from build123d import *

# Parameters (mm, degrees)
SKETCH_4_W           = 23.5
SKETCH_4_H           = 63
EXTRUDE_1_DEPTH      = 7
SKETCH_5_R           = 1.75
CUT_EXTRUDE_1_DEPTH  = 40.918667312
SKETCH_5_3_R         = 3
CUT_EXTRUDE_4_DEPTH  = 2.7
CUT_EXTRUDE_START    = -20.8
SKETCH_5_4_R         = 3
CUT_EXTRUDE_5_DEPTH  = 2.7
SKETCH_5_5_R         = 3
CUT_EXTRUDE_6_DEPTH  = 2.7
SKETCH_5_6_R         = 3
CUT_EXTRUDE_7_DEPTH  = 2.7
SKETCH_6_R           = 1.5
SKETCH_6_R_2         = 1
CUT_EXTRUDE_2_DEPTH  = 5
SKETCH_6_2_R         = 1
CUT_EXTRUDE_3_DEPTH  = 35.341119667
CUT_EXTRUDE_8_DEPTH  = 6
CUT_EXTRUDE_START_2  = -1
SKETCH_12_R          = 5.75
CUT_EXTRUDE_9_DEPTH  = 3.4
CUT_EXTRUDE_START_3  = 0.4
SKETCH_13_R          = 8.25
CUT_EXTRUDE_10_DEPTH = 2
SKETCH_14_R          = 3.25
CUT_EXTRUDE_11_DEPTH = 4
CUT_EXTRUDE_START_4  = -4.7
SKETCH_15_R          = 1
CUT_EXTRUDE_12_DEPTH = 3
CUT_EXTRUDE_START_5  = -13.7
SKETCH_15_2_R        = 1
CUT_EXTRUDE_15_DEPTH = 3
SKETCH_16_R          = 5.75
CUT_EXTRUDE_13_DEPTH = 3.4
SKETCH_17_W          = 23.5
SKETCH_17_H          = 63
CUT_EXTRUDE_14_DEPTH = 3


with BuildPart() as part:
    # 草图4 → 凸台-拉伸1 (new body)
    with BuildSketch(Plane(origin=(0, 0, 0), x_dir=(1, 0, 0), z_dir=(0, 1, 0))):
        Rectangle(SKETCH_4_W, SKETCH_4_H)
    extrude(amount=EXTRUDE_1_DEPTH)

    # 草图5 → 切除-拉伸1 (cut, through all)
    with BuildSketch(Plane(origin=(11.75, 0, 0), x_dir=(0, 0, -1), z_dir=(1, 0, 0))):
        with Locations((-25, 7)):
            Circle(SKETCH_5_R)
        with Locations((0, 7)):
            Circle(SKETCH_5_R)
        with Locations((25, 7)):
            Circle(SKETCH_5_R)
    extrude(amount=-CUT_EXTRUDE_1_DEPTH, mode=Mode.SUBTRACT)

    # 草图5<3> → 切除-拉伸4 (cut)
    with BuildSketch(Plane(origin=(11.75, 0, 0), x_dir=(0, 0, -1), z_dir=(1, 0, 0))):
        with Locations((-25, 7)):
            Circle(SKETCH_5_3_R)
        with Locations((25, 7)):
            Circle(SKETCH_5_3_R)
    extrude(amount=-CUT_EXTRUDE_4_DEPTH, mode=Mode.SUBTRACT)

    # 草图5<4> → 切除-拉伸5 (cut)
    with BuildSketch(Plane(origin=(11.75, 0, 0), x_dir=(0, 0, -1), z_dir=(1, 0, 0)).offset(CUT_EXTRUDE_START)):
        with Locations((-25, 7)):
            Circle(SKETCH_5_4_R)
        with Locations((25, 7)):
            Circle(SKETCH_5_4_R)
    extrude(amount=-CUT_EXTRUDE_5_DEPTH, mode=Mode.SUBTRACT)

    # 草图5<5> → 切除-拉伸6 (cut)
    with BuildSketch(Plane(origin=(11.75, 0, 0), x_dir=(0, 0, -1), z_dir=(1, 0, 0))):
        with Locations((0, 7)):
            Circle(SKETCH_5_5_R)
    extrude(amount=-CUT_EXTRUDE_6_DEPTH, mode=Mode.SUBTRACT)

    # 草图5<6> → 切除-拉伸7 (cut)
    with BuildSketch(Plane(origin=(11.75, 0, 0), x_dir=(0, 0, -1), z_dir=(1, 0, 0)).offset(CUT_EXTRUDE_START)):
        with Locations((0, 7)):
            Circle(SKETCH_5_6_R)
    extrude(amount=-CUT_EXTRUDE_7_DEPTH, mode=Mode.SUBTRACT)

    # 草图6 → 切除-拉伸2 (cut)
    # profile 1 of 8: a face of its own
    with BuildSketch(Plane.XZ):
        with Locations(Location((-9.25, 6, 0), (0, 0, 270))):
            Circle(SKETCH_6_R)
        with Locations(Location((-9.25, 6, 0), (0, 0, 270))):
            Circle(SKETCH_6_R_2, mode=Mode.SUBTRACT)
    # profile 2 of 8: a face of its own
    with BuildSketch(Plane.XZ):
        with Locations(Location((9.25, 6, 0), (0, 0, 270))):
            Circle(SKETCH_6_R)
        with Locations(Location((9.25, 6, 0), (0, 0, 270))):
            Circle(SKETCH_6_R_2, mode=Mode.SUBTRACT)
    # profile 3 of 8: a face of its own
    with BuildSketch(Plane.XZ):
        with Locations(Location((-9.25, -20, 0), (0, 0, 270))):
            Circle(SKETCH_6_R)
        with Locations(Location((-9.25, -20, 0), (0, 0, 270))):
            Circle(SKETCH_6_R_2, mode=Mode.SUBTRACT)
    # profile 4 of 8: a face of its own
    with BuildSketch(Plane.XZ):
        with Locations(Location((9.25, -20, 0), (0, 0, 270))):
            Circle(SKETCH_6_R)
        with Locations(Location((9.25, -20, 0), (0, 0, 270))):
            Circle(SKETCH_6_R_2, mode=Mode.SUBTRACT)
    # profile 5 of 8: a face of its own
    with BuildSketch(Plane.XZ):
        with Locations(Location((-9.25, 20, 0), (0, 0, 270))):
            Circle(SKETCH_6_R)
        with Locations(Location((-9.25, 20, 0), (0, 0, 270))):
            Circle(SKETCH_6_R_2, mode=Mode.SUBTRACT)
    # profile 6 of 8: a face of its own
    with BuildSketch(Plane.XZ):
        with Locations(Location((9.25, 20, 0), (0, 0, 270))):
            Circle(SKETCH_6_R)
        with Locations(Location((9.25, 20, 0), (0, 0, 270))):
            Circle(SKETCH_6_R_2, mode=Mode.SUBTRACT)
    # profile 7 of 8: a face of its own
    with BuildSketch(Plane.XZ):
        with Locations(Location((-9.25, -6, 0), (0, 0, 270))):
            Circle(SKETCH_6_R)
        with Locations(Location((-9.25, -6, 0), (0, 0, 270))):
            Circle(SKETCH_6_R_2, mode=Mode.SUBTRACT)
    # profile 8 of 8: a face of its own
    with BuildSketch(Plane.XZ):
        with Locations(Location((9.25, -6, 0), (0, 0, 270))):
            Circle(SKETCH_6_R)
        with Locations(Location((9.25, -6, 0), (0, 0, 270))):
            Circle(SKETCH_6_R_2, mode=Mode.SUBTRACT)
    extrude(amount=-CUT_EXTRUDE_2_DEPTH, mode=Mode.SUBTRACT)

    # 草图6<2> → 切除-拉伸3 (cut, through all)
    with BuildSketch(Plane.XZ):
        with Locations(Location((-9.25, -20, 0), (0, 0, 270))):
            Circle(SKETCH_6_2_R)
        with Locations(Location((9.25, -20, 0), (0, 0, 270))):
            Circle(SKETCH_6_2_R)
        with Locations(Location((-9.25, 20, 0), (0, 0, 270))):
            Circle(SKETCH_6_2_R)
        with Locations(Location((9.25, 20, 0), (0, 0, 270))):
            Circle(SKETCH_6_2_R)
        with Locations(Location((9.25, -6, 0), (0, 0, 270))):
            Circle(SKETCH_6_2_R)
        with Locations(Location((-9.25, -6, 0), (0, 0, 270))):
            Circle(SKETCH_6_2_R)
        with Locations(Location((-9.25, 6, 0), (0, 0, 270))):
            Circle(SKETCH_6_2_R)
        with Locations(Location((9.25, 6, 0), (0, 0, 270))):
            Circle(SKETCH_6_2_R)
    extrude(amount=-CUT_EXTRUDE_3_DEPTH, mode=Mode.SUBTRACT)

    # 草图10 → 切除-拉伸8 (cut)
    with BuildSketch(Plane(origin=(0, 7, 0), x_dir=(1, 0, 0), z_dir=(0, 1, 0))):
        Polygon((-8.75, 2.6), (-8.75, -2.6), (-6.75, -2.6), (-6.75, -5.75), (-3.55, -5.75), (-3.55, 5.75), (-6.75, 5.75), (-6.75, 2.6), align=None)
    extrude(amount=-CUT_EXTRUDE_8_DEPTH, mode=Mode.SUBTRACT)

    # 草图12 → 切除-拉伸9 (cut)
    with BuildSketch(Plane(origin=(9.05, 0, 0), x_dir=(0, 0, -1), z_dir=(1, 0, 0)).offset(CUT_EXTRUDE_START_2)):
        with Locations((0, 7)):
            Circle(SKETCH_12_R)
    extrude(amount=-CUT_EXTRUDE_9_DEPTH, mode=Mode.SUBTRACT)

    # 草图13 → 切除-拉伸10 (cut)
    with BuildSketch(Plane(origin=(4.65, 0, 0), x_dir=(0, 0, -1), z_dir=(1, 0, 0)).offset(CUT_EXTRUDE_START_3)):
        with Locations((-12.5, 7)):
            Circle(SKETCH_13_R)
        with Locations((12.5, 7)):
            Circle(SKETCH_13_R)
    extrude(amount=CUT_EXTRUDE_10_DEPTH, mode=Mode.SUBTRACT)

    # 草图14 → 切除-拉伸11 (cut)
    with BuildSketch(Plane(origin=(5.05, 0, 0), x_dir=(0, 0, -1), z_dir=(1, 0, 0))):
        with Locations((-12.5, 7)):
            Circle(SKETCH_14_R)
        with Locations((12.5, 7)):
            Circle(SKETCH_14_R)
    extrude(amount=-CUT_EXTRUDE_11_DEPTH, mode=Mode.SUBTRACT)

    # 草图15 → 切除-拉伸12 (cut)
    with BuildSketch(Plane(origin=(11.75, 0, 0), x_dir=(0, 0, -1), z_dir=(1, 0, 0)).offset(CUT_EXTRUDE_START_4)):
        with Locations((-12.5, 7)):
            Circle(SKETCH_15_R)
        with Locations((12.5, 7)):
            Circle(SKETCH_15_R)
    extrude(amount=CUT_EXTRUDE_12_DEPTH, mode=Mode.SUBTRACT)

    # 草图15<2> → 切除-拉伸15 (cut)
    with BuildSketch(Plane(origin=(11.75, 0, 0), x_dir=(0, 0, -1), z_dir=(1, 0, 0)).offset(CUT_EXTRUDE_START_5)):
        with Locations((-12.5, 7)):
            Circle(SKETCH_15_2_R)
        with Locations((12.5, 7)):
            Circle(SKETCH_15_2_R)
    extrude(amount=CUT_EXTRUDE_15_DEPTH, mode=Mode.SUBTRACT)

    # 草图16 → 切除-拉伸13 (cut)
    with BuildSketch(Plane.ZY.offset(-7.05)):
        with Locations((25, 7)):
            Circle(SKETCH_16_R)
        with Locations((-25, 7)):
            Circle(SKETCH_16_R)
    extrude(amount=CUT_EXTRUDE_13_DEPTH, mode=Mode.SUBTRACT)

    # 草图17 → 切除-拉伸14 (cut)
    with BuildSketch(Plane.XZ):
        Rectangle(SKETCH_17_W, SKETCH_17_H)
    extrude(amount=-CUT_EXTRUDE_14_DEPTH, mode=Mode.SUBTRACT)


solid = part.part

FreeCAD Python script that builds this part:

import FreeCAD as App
import Part
import Sketcher


def add_polygon(sketch, points):
    """Adds a closed chain of lines whose ends are joined by coincident constraints."""
    first, n = sketch.GeometryCount, len(points)
    for a, b in zip(points, points[1:] + points[:1]):
        sketch.addGeometry(Part.LineSegment(App.Vector(*a, 0), App.Vector(*b, 0)), False)
    for i in range(n):
        sketch.addConstraint(Sketcher.Constraint("Coincident", first + i, 2, first + (i + 1) % n, 1))

doc = App.newDocument("Part")
body = doc.addObject("PartDesign::Body", "Body")

# Sketch on XZ plane
sketch1 = doc.addObject("Sketcher::SketchObject", "Sketch")
body.addObject(sketch1)
sketch1.AttachmentSupport = (doc.XZ_Plane, [""])
sketch1.MapMode = "FlatFace"
add_polygon(sketch1, [(-11.75, -31.5), (-11.75, 31.5), (11.75, 31.5), (11.75, -31.5)])  # lines 0-3
sketch1.addConstraint(Sketcher.Constraint("Vertical", 0))
sketch1.addConstraint(Sketcher.Constraint("Horizontal", 1))
sketch1.addConstraint(Sketcher.Constraint("Vertical", 2))
sketch1.addConstraint(Sketcher.Constraint("Horizontal", 3))
sketch1.addConstraint(Sketcher.Constraint("Symmetric", 0, 2, 2, 2, -1, 1))
sketch1.addConstraint(Sketcher.Constraint("DistanceY", 0, 1, 0, 2, 63.0))
sketch1.addConstraint(Sketcher.Constraint("DistanceX", 1, 1, 1, 2, 23.5))
pad1 = doc.addObject("PartDesign::Pad", "Pad")
body.addObject(pad1)
pad1.Profile = sketch1
pad1.Length = 7
pad1.Reversed = True

# Sketch on YZ plane
sketch2 = doc.addObject("Sketcher::SketchObject", "Sketch001")
body.addObject(sketch2)
sketch2.AttachmentSupport = (doc.YZ_Plane, [""])
sketch2.MapMode = "FlatFace"
sketch2.AttachmentOffset = App.Placement(App.Vector(0, 0, 11.75), App.Rotation())
sketch2.addGeometry(Part.Circle(App.Vector(7, 25, 0), App.Vector(0, 0, 1), 1.75), False)
sketch2.addGeometry(Part.Circle(App.Vector(7, 0, 0), App.Vector(0, 0, 1), 1.75), False)
sketch2.addGeometry(Part.Circle(App.Vector(7, -25, 0), App.Vector(0, 0, 1), 1.75), False)
sketch2.addConstraint(Sketcher.Constraint("Equal", 0, 1))
sketch2.addConstraint(Sketcher.Constraint("Equal", 1, 2))
sketch2.addConstraint(Sketcher.Constraint("Symmetric", 0, 3, 2, 3, -1))
sketch2.addConstraint(Sketcher.Constraint("PointOnObject", 1, 3, -1))
sketch2.addConstraint(Sketcher.Constraint("Vertical", 0, 3, 1, 3))
sketch2.addConstraint(Sketcher.Constraint("Diameter", 0, 3.5))
sketch2.addConstraint(Sketcher.Constraint("DistanceX", -1, 1, 0, 3, 7.0))
sketch2.addConstraint(Sketcher.Constraint("DistanceY", -1, 1, 0, 3, 25.0))
pocket1 = doc.addObject("PartDesign::Pocket", "Pocket")
body.addObject(pocket1)
pocket1.Profile = sketch2
pocket1.Type = "ThroughAll"

# Sketch on YZ plane
sketch3 = doc.addObject("Sketcher::SketchObject", "Sketch002")
body.addObject(sketch3)
sketch3.AttachmentSupport = (doc.YZ_Plane, [""])
sketch3.MapMode = "FlatFace"
sketch3.AttachmentOffset = App.Placement(App.Vector(0, 0, 11.75), App.Rotation())
sketch3.addGeometry(Part.Circle(App.Vector(7, 25, 0), App.Vector(0, 0, 1), 3), False)
sketch3.addGeometry(Part.Circle(App.Vector(7, -25, 0), App.Vector(0, 0, 1), 3), False)
sketch3.addConstraint(Sketcher.Constraint("Equal", 0, 1))
sketch3.addConstraint(Sketcher.Constraint("Symmetric", 0, 3, 1, 3, -1))
sketch3.addConstraint(Sketcher.Constraint("Diameter", 0, 6.0))
sketch3.addConstraint(Sketcher.Constraint("DistanceX", -1, 1, 0, 3, 7.0))
sketch3.addConstraint(Sketcher.Constraint("DistanceY", -1, 1, 0, 3, 25.0))
pocket2 = doc.addObject("PartDesign::Pocket", "Pocket001")
body.addObject(pocket2)
pocket2.Profile = sketch3
pocket2.Length = 2.7

# Sketch on YZ plane
sketch4 = doc.addObject("Sketcher::SketchObject", "Sketch003")
body.addObject(sketch4)
sketch4.AttachmentSupport = (doc.YZ_Plane, [""])
sketch4.MapMode = "FlatFace"
sketch4.AttachmentOffset = App.Placement(App.Vector(0, 0, -9.05), App.Rotation())
sketch4.addGeometry(Part.Circle(App.Vector(7, 25, 0), App.Vector(0, 0, 1), 3), False)
sketch4.addGeometry(Part.Circle(App.Vector(7, -25, 0), App.Vector(0, 0, 1), 3), False)
sketch4.addConstraint(Sketcher.Constraint("Equal", 0, 1))
sketch4.addConstraint(Sketcher.Constraint("Symmetric", 0, 3, 1, 3, -1))
sketch4.addConstraint(Sketcher.Constraint("Diameter", 0, 6.0))
sketch4.addConstraint(Sketcher.Constraint("DistanceX", -1, 1, 0, 3, 7.0))
sketch4.addConstraint(Sketcher.Constraint("DistanceY", -1, 1, 0, 3, 25.0))
pocket3 = doc.addObject("PartDesign::Pocket", "Pocket002")
body.addObject(pocket3)
pocket3.Profile = sketch4
pocket3.Length = 2.7

# Sketch on YZ plane
sketch5 = doc.addObject("Sketcher::SketchObject", "Sketch004")
body.addObject(sketch5)
sketch5.AttachmentSupport = (doc.YZ_Plane, [""])
sketch5.MapMode = "FlatFace"
sketch5.AttachmentOffset = App.Placement(App.Vector(0, 0, 11.75), App.Rotation())
sketch5.addGeometry(Part.Circle(App.Vector(7, 0, 0), App.Vector(0, 0, 1), 3), False)
sketch5.addConstraint(Sketcher.Constraint("PointOnObject", 0, 3, -1))
sketch5.addConstraint(Sketcher.Constraint("Diameter", 0, 6.0))
sketch5.addConstraint(Sketcher.Constraint("DistanceX", -1, 1, 0, 3, 7.0))
pocket4 = doc.addObject("PartDesign::Pocket", "Pocket003")
body.addObject(pocket4)
pocket4.Profile = sketch5
pocket4.Length = 2.7

# Sketch on YZ plane
sketch6 = doc.addObject("Sketcher::SketchObject", "Sketch005")
body.addObject(sketch6)
sketch6.AttachmentSupport = (doc.YZ_Plane, [""])
sketch6.MapMode = "FlatFace"
sketch6.AttachmentOffset = App.Placement(App.Vector(0, 0, -9.05), App.Rotation())
sketch6.addGeometry(Part.Circle(App.Vector(7, 0, 0), App.Vector(0, 0, 1), 3), False)
sketch6.addConstraint(Sketcher.Constraint("PointOnObject", 0, 3, -1))
sketch6.addConstraint(Sketcher.Constraint("Diameter", 0, 6.0))
sketch6.addConstraint(Sketcher.Constraint("DistanceX", -1, 1, 0, 3, 7.0))
pocket5 = doc.addObject("PartDesign::Pocket", "Pocket004")
body.addObject(pocket5)
pocket5.Profile = sketch6
pocket5.Length = 2.7

# Sketch on XZ plane
sketch7 = doc.addObject("Sketcher::SketchObject", "Sketch006")
body.addObject(sketch7)
sketch7.AttachmentSupport = (doc.XZ_Plane, [""])
sketch7.MapMode = "FlatFace"
sketch7.addGeometry(Part.Circle(App.Vector(-9.25, 6, 0), App.Vector(0, 0, 1), 1.5), False)
sketch7.addGeometry(Part.Circle(App.Vector(-9.25, 6, 0), App.Vector(0, 0, 1), 1), False)
sketch7.addGeometry(Part.Circle(App.Vector(9.25, 6, 0), App.Vector(0, 0, 1), 1.5), False)
sketch7.addGeometry(Part.Circle(App.Vector(9.25, 6, 0), App.Vector(0, 0, 1), 1), False)
sketch7.addGeometry(Part.Circle(App.Vector(-9.25, -20, 0), App.Vector(0, 0, 1), 1.5), False)
sketch7.addGeometry(Part.Circle(App.Vector(-9.25, -20, 0), App.Vector(0, 0, 1), 1), False)
sketch7.addGeometry(Part.Circle(App.Vector(9.25, -20, 0), App.Vector(0, 0, 1), 1.5), False)
sketch7.addGeometry(Part.Circle(App.Vector(9.25, -20, 0), App.Vector(0, 0, 1), 1), False)
sketch7.addGeometry(Part.Circle(App.Vector(-9.25, 20, 0), App.Vector(0, 0, 1), 1.5), False)
sketch7.addGeometry(Part.Circle(App.Vector(-9.25, 20, 0), App.Vector(0, 0, 1), 1), False)
sketch7.addGeometry(Part.Circle(App.Vector(9.25, 20, 0), App.Vector(0, 0, 1), 1.5), False)
sketch7.addGeometry(Part.Circle(App.Vector(9.25, 20, 0), App.Vector(0, 0, 1), 1), False)
sketch7.addGeometry(Part.Circle(App.Vector(-9.25, -6, 0), App.Vector(0, 0, 1), 1.5), False)
sketch7.addGeometry(Part.Circle(App.Vector(-9.25, -6, 0), App.Vector(0, 0, 1), 1), False)
sketch7.addGeometry(Part.Circle(App.Vector(9.25, -6, 0), App.Vector(0, 0, 1), 1.5), False)
sketch7.addGeometry(Part.Circle(App.Vector(9.25, -6, 0), App.Vector(0, 0, 1), 1), False)
sketch7.addConstraint(Sketcher.Constraint("Coincident", 1, 3, 0, 3))
sketch7.addConstraint(Sketcher.Constraint("Coincident", 3, 3, 2, 3))
sketch7.addConstraint(Sketcher.Constraint("Coincident", 5, 3, 4, 3))
sketch7.addConstraint(Sketcher.Constraint("Coincident", 7, 3, 6, 3))
sketch7.addConstraint(Sketcher.Constraint("Coincident", 9, 3, 8, 3))
sketch7.addConstraint(Sketcher.Constraint("Coincident", 11, 3, 10, 3))
sketch7.addConstraint(Sketcher.Constraint("Coincident", 13, 3, 12, 3))
sketch7.addConstraint(Sketcher.Constraint("Coincident", 15, 3, 14, 3))
sketch7.addConstraint(Sketcher.Constraint("Equal", 0, 2))
sketch7.addConstraint(Sketcher.Constraint("Equal", 1, 3))
sketch7.addConstraint(Sketcher.Constraint("Equal", 2, 4))
sketch7.addConstraint(Sketcher.Constraint("Equal", 3, 5))
sketch7.addConstraint(Sketcher.Constraint("Equal", 4, 6))
sketch7.addConstraint(Sketcher.Constraint("Equal", 5, 7))
sketch7.addConstraint(Sketcher.Constraint("Equal", 6, 8))
sketch7.addConstraint(Sketcher.Constraint("Equal", 7, 9))
sketch7.addConstraint(Sketcher.Constraint("Equal", 8, 10))
sketch7.addConstraint(Sketcher.Constraint("Equal", 9, 11))
sketch7.addConstraint(Sketcher.Constraint("Equal", 10, 12))
sketch7.addConstraint(Sketcher.Constraint("Equal", 11, 13))
sketch7.addConstraint(Sketcher.Constraint("Equal", 12, 14))
sketch7.addConstraint(Sketcher.Constraint("Equal", 13, 15))
sketch7.addConstraint(Sketcher.Constraint("Symmetric", 6, 3, 8, 3, -1, 1))
sketch7.addConstraint(Sketcher.Constraint("Symmetric", 4, 3, 10, 3, -1, 1))
sketch7.addConstraint(Sketcher.Constraint("Symmetric", 2, 3, 12, 3, -1, 1))
sketch7.addConstraint(Sketcher.Constraint("Symmetric", 0, 3, 14, 3, -1, 1))
sketch7.addConstraint(Sketcher.Constraint("Symmetric", 0, 3, 2, 3, -2))
sketch7.addConstraint(Sketcher.Constraint("Symmetric", 4, 3, 6, 3, -2))
sketch7.addConstraint(Sketcher.Constraint("Vertical", 1, 3, 4, 3))
sketch7.addConstraint(Sketcher.Constraint("Diameter", 0, 3.0))
sketch7.addConstraint(Sketcher.Constraint("Diameter", 1, 2.0))
sketch7.addConstraint(Sketcher.Constraint("DistanceY", -1, 1, 0, 3, 6.0))
sketch7.addConstraint(Sketcher.Constraint("DistanceY", 4, 3, -1, 1, 20.0))
sketch7.addConstraint(Sketcher.Constraint("DistanceX", 0, 3, 2, 3, 18.5))
pocket6 = doc.addObject("PartDesign::Pocket", "Pocket005")
body.addObject(pocket6)
pocket6.Profile = sketch7
pocket6.Length = 5

# Sketch on XZ plane
sketch8 = doc.addObject("Sketcher::SketchObject", "Sketch007")
body.addObject(sketch8)
sketch8.AttachmentSupport = (doc.XZ_Plane, [""])
sketch8.MapMode = "FlatFace"
sketch8.addGeometry(Part.Circle(App.Vector(-9.25, -20, 0), App.Vector(0, 0, 1), 1), False)
sketch8.addGeometry(Part.Circle(App.Vector(9.25, -20, 0), App.Vector(0, 0, 1), 1), False)
sketch8.addGeometry(Part.Circle(App.Vector(-9.25, 20, 0), App.Vector(0, 0, 1), 1), False)
sketch8.addGeometry(Part.Circle(App.Vector(9.25, 20, 0), App.Vector(0, 0, 1), 1), False)
sketch8.addGeometry(Part.Circle(App.Vector(9.25, -6, 0), App.Vector(0, 0, 1), 1), False)
sketch8.addGeometry(Part.Circle(App.Vector(-9.25, -6, 0), App.Vector(0, 0, 1), 1), False)
sketch8.addGeometry(Part.Circle(App.Vector(-9.25, 6, 0), App.Vector(0, 0, 1), 1), False)
sketch8.addGeometry(Part.Circle(App.Vector(9.25, 6, 0), App.Vector(0, 0, 1), 1), False)
sketch8.addConstraint(Sketcher.Constraint("Equal", 0, 1))
sketch8.addConstraint(Sketcher.Constraint("Equal", 1, 2))
sketch8.addConstraint(Sketcher.Constraint("Equal", 2, 3))
sketch8.addConstraint(Sketcher.Constraint("Equal", 3, 4))
sketch8.addConstraint(Sketcher.Constraint("Equal", 4, 5))
sketch8.addConstraint(Sketcher.Constraint("Equal", 5, 6))
sketch8.addConstraint(Sketcher.Constraint("Equal", 6, 7))
sketch8.addConstraint(Sketcher.Constraint("Symmetric", 1, 3, 2, 3, -1, 1))
sketch8.addConstraint(Sketcher.Constraint("Symmetric", 0, 3, 3, 3, -1, 1))
sketch8.addConstraint(Sketcher.Constraint("Symmetric", 4, 3, 6, 3, -1, 1))
sketch8.addConstraint(Sketcher.Constraint("Symmetric", 5, 3, 7, 3, -1, 1))
sketch8.addConstraint(Sketcher.Constraint("Symmetric", 0, 3, 1, 3, -2))
sketch8.addConstraint(Sketcher.Constraint("Symmetric", 4, 3, 5, 3, -2))
sketch8.addConstraint(Sketcher.Constraint("Vertical", 3, 3, 4, 3))
sketch8.addConstraint(Sketcher.Constraint("Diameter", 0, 2.0))
sketch8.addConstraint(Sketcher.Constraint("DistanceY", 0, 3, -1, 1, 20.0))
sketch8.addConstraint(Sketcher.Constraint("DistanceY", 4, 3, -1, 1, 6.0))
sketch8.addConstraint(Sketcher.Constraint("DistanceX", 0, 3, 1, 3, 18.5))
pocket7 = doc.addObject("PartDesign::Pocket", "Pocket006")
body.addObject(pocket7)
pocket7.Profile = sketch8
pocket7.Type = "ThroughAll"

# Sketch on XZ plane
sketch9 = doc.addObject("Sketcher::SketchObject", "Sketch008")
body.addObject(sketch9)
sketch9.AttachmentSupport = (doc.XZ_Plane, [""])
sketch9.MapMode = "FlatFace"
sketch9.AttachmentOffset = App.Placement(App.Vector(0, 0, -7), App.Rotation())
add_polygon(sketch9, [(-8.75, -2.6), (-8.75, 2.6), (-6.75, 2.6), (-6.75, 5.75), (-3.55, 5.75), (-3.55, -5.75), (-6.75, -5.75), (-6.75, -2.6)])  # lines 0-7
sketch9.addConstraint(Sketcher.Constraint("Vertical", 0))
sketch9.addConstraint(Sketcher.Constraint("Horizontal", 1))
sketch9.addConstraint(Sketcher.Constraint("Vertical", 2))
sketch9.addConstraint(Sketcher.Constraint("Horizontal", 3))
sketch9.addConstraint(Sketcher.Constraint("Vertical", 4))
sketch9.addConstraint(Sketcher.Constraint("Horizontal", 5))
sketch9.addConstraint(Sketcher.Constraint("Vertical", 6))
sketch9.addConstraint(Sketcher.Constraint("Horizontal", 7))
sketch9.addConstraint(Sketcher.Constraint("Symmetric", 2, 2, 5, 2, -1))
sketch9.addConstraint(Sketcher.Constraint("Equal", 2, 6))
sketch9.addConstraint(Sketcher.Constraint("DistanceX", 1, 1, 1, 2, 2.0))
sketch9.addConstraint(Sketcher.Constraint("DistanceX", 3, 1, 3, 2, 3.2))
sketch9.addConstraint(Sketcher.Constraint("DistanceY", 0, 1, 0, 2, 5.2))
sketch9.addConstraint(Sketcher.Constraint("DistanceY", 4, 2, 4, 1, 11.5))
sketch9.addConstraint(Sketcher.Constraint("DistanceX", 0, 2, -1, 1, 8.75))
pocket8 = doc.addObject("PartDesign::Pocket", "Pocket007")
body.addObject(pocket8)
pocket8.Profile = sketch9
pocket8.Length = 6
pocket8.Reversed = True

# Sketch on YZ plane
sketch10 = doc.addObject("Sketcher::SketchObject", "Sketch009")
body.addObject(sketch10)
sketch10.AttachmentSupport = (doc.YZ_Plane, [""])
sketch10.MapMode = "FlatFace"
sketch10.AttachmentOffset = App.Placement(App.Vector(0, 0, 8.05), App.Rotation())
sketch10.addGeometry(Part.Circle(App.Vector(7, 0, 0), App.Vector(0, 0, 1), 5.75), False)
sketch10.addConstraint(Sketcher.Constraint("PointOnObject", 0, 3, -1))
sketch10.addConstraint(Sketcher.Constraint("Diameter", 0, 11.5))
sketch10.addConstraint(Sketcher.Constraint("DistanceX", -1, 1, 0, 3, 7.0))
pocket9 = doc.addObject("PartDesign::Pocket", "Pocket008")
body.addObject(pocket9)
pocket9.Profile = sketch10
pocket9.Length = 3.4

# Sketch on YZ plane
sketch11 = doc.addObject("Sketcher::SketchObject", "Sketch010")
body.addObject(sketch11)
sketch11.AttachmentSupport = (doc.YZ_Plane, [""])
sketch11.MapMode = "FlatFace"
sketch11.AttachmentOffset = App.Placement(App.Vector(0, 0, 5.05), App.Rotation())
sketch11.addGeometry(Part.Circle(App.Vector(7, 12.5, 0), App.Vector(0, 0, 1), 8.25), False)
sketch11.addGeometry(Part.Circle(App.Vector(7, -12.5, 0), App.Vector(0, 0, 1), 8.25), False)
sketch11.addConstraint(Sketcher.Constraint("Equal", 0, 1))
sketch11.addConstraint(Sketcher.Constraint("Symmetric", 0, 3, 1, 3, -1))
sketch11.addConstraint(Sketcher.Constraint("Diameter", 0, 16.5))
sketch11.addConstraint(Sketcher.Constraint("DistanceX", -1, 1, 0, 3, 7.0))
sketch11.addConstraint(Sketcher.Constraint("DistanceY", 1, 3, 0, 3, 25.0))
pocket10 = doc.addObject("PartDesign::Pocket", "Pocket009")
body.addObject(pocket10)
pocket10.Profile = sketch11
pocket10.Length = 2
pocket10.Reversed = True

# Sketch on YZ plane
sketch12 = doc.addObject("Sketcher::SketchObject", "Sketch011")
body.addObject(sketch12)
sketch12.AttachmentSupport = (doc.YZ_Plane, [""])
sketch12.MapMode = "FlatFace"
sketch12.AttachmentOffset = App.Placement(App.Vector(0, 0, 5.05), App.Rotation())
sketch12.addGeometry(Part.Circle(App.Vector(7, 12.5, 0), App.Vector(0, 0, 1), 3.25), False)
sketch12.addGeometry(Part.Circle(App.Vector(7, -12.5, 0), App.Vector(0, 0, 1), 3.25), False)
sketch12.addConstraint(Sketcher.Constraint("Equal", 0, 1))
sketch12.addConstraint(Sketcher.Constraint("Symmetric", 0, 3, 1, 3, -1))
sketch12.addConstraint(Sketcher.Constraint("Diameter", 0, 6.5))
sketch12.addConstraint(Sketcher.Constraint("DistanceX", -1, 1, 0, 3, 7.0))
sketch12.addConstraint(Sketcher.Constraint("DistanceY", 1, 3, 0, 3, 25.0))
pocket11 = doc.addObject("PartDesign::Pocket", "Pocket010")
body.addObject(pocket11)
pocket11.Profile = sketch12
pocket11.Length = 4

# Sketch on YZ plane
sketch13 = doc.addObject("Sketcher::SketchObject", "Sketch012")
body.addObject(sketch13)
sketch13.AttachmentSupport = (doc.YZ_Plane, [""])
sketch13.MapMode = "FlatFace"
sketch13.AttachmentOffset = App.Placement(App.Vector(0, 0, 7.05), App.Rotation())
sketch13.addGeometry(Part.Circle(App.Vector(7, 12.5, 0), App.Vector(0, 0, 1), 1), False)
sketch13.addGeometry(Part.Circle(App.Vector(7, -12.5, 0), App.Vector(0, 0, 1), 1), False)
sketch13.addConstraint(Sketcher.Constraint("Equal", 0, 1))
sketch13.addConstraint(Sketcher.Constraint("Symmetric", 0, 3, 1, 3, -1))
sketch13.addConstraint(Sketcher.Constraint("Diameter", 0, 2.0))
sketch13.addConstraint(Sketcher.Constraint("DistanceX", -1, 1, 0, 3, 7.0))
sketch13.addConstraint(Sketcher.Constraint("DistanceY", 1, 3, 0, 3, 25.0))
pocket12 = doc.addObject("PartDesign::Pocket", "Pocket011")
body.addObject(pocket12)
pocket12.Profile = sketch13
pocket12.Length = 3
pocket12.Reversed = True

# Sketch on YZ plane
sketch14 = doc.addObject("Sketcher::SketchObject", "Sketch013")
body.addObject(sketch14)
sketch14.AttachmentSupport = (doc.YZ_Plane, [""])
sketch14.MapMode = "FlatFace"
sketch14.AttachmentOffset = App.Placement(App.Vector(0, 0, -1.95), App.Rotation())
sketch14.addGeometry(Part.Circle(App.Vector(7, 12.5, 0), App.Vector(0, 0, 1), 1), False)
sketch14.addGeometry(Part.Circle(App.Vector(7, -12.5, 0), App.Vector(0, 0, 1), 1), False)
sketch14.addConstraint(Sketcher.Constraint("Equal", 0, 1))
sketch14.addConstraint(Sketcher.Constraint("Symmetric", 0, 3, 1, 3, -1))
sketch14.addConstraint(Sketcher.Constraint("Diameter", 0, 2.0))
sketch14.addConstraint(Sketcher.Constraint("DistanceX", -1, 1, 0, 3, 7.0))
sketch14.addConstraint(Sketcher.Constraint("DistanceY", 1, 3, 0, 3, 25.0))
pocket13 = doc.addObject("PartDesign::Pocket", "Pocket012")
body.addObject(pocket13)
pocket13.Profile = sketch14
pocket13.Length = 3
pocket13.Reversed = True

# Sketch on YZ plane
sketch15 = doc.addObject("Sketcher::SketchObject", "Sketch014")
body.addObject(sketch15)
sketch15.AttachmentSupport = (doc.YZ_Plane, [""])
sketch15.MapMode = "FlatFace"
sketch15.AttachmentOffset = App.Placement(App.Vector(0, 0, 7.05), App.Rotation())
sketch15.addGeometry(Part.Circle(App.Vector(7, 25, 0), App.Vector(0, 0, 1), 5.75), False)
sketch15.addGeometry(Part.Circle(App.Vector(7, -25, 0), App.Vector(0, 0, 1), 5.75), False)
sketch15.addConstraint(Sketcher.Constraint("Equal", 0, 1))
sketch15.addConstraint(Sketcher.Constraint("Symmetric", 0, 3, 1, 3, -1))
sketch15.addConstraint(Sketcher.Constraint("Diameter", 0, 11.5))
sketch15.addConstraint(Sketcher.Constraint("DistanceX", -1, 1, 0, 3, 7.0))
sketch15.addConstraint(Sketcher.Constraint("DistanceY", -1, 1, 0, 3, 25.0))
pocket14 = doc.addObject("PartDesign::Pocket", "Pocket013")
body.addObject(pocket14)
pocket14.Profile = sketch15
pocket14.Length = 3.4

# Sketch on XZ plane
sketch16 = doc.addObject("Sketcher::SketchObject", "Sketch015")
body.addObject(sketch16)
sketch16.AttachmentSupport = (doc.XZ_Plane, [""])
sketch16.MapMode = "FlatFace"
add_polygon(sketch16, [(-11.75, 31.5), (-11.75, -31.5), (11.75, -31.5), (11.75, 31.5)])  # lines 0-3
sketch16.addConstraint(Sketcher.Constraint("Vertical", 0))
sketch16.addConstraint(Sketcher.Constraint("Horizontal", 1))
sketch16.addConstraint(Sketcher.Constraint("Vertical", 2))
sketch16.addConstraint(Sketcher.Constraint("Horizontal", 3))
sketch16.addConstraint(Sketcher.Constraint("Symmetric", 0, 2, 2, 2, -1, 1))
sketch16.addConstraint(Sketcher.Constraint("DistanceY", 0, 2, 0, 1, 63.0))
sketch16.addConstraint(Sketcher.Constraint("DistanceX", 1, 1, 1, 2, 23.5))
pocket15 = doc.addObject("PartDesign::Pocket", "Pocket014")
body.addObject(pocket15)
pocket15.Profile = sketch16
pocket15.Length = 3

doc.recompute()
